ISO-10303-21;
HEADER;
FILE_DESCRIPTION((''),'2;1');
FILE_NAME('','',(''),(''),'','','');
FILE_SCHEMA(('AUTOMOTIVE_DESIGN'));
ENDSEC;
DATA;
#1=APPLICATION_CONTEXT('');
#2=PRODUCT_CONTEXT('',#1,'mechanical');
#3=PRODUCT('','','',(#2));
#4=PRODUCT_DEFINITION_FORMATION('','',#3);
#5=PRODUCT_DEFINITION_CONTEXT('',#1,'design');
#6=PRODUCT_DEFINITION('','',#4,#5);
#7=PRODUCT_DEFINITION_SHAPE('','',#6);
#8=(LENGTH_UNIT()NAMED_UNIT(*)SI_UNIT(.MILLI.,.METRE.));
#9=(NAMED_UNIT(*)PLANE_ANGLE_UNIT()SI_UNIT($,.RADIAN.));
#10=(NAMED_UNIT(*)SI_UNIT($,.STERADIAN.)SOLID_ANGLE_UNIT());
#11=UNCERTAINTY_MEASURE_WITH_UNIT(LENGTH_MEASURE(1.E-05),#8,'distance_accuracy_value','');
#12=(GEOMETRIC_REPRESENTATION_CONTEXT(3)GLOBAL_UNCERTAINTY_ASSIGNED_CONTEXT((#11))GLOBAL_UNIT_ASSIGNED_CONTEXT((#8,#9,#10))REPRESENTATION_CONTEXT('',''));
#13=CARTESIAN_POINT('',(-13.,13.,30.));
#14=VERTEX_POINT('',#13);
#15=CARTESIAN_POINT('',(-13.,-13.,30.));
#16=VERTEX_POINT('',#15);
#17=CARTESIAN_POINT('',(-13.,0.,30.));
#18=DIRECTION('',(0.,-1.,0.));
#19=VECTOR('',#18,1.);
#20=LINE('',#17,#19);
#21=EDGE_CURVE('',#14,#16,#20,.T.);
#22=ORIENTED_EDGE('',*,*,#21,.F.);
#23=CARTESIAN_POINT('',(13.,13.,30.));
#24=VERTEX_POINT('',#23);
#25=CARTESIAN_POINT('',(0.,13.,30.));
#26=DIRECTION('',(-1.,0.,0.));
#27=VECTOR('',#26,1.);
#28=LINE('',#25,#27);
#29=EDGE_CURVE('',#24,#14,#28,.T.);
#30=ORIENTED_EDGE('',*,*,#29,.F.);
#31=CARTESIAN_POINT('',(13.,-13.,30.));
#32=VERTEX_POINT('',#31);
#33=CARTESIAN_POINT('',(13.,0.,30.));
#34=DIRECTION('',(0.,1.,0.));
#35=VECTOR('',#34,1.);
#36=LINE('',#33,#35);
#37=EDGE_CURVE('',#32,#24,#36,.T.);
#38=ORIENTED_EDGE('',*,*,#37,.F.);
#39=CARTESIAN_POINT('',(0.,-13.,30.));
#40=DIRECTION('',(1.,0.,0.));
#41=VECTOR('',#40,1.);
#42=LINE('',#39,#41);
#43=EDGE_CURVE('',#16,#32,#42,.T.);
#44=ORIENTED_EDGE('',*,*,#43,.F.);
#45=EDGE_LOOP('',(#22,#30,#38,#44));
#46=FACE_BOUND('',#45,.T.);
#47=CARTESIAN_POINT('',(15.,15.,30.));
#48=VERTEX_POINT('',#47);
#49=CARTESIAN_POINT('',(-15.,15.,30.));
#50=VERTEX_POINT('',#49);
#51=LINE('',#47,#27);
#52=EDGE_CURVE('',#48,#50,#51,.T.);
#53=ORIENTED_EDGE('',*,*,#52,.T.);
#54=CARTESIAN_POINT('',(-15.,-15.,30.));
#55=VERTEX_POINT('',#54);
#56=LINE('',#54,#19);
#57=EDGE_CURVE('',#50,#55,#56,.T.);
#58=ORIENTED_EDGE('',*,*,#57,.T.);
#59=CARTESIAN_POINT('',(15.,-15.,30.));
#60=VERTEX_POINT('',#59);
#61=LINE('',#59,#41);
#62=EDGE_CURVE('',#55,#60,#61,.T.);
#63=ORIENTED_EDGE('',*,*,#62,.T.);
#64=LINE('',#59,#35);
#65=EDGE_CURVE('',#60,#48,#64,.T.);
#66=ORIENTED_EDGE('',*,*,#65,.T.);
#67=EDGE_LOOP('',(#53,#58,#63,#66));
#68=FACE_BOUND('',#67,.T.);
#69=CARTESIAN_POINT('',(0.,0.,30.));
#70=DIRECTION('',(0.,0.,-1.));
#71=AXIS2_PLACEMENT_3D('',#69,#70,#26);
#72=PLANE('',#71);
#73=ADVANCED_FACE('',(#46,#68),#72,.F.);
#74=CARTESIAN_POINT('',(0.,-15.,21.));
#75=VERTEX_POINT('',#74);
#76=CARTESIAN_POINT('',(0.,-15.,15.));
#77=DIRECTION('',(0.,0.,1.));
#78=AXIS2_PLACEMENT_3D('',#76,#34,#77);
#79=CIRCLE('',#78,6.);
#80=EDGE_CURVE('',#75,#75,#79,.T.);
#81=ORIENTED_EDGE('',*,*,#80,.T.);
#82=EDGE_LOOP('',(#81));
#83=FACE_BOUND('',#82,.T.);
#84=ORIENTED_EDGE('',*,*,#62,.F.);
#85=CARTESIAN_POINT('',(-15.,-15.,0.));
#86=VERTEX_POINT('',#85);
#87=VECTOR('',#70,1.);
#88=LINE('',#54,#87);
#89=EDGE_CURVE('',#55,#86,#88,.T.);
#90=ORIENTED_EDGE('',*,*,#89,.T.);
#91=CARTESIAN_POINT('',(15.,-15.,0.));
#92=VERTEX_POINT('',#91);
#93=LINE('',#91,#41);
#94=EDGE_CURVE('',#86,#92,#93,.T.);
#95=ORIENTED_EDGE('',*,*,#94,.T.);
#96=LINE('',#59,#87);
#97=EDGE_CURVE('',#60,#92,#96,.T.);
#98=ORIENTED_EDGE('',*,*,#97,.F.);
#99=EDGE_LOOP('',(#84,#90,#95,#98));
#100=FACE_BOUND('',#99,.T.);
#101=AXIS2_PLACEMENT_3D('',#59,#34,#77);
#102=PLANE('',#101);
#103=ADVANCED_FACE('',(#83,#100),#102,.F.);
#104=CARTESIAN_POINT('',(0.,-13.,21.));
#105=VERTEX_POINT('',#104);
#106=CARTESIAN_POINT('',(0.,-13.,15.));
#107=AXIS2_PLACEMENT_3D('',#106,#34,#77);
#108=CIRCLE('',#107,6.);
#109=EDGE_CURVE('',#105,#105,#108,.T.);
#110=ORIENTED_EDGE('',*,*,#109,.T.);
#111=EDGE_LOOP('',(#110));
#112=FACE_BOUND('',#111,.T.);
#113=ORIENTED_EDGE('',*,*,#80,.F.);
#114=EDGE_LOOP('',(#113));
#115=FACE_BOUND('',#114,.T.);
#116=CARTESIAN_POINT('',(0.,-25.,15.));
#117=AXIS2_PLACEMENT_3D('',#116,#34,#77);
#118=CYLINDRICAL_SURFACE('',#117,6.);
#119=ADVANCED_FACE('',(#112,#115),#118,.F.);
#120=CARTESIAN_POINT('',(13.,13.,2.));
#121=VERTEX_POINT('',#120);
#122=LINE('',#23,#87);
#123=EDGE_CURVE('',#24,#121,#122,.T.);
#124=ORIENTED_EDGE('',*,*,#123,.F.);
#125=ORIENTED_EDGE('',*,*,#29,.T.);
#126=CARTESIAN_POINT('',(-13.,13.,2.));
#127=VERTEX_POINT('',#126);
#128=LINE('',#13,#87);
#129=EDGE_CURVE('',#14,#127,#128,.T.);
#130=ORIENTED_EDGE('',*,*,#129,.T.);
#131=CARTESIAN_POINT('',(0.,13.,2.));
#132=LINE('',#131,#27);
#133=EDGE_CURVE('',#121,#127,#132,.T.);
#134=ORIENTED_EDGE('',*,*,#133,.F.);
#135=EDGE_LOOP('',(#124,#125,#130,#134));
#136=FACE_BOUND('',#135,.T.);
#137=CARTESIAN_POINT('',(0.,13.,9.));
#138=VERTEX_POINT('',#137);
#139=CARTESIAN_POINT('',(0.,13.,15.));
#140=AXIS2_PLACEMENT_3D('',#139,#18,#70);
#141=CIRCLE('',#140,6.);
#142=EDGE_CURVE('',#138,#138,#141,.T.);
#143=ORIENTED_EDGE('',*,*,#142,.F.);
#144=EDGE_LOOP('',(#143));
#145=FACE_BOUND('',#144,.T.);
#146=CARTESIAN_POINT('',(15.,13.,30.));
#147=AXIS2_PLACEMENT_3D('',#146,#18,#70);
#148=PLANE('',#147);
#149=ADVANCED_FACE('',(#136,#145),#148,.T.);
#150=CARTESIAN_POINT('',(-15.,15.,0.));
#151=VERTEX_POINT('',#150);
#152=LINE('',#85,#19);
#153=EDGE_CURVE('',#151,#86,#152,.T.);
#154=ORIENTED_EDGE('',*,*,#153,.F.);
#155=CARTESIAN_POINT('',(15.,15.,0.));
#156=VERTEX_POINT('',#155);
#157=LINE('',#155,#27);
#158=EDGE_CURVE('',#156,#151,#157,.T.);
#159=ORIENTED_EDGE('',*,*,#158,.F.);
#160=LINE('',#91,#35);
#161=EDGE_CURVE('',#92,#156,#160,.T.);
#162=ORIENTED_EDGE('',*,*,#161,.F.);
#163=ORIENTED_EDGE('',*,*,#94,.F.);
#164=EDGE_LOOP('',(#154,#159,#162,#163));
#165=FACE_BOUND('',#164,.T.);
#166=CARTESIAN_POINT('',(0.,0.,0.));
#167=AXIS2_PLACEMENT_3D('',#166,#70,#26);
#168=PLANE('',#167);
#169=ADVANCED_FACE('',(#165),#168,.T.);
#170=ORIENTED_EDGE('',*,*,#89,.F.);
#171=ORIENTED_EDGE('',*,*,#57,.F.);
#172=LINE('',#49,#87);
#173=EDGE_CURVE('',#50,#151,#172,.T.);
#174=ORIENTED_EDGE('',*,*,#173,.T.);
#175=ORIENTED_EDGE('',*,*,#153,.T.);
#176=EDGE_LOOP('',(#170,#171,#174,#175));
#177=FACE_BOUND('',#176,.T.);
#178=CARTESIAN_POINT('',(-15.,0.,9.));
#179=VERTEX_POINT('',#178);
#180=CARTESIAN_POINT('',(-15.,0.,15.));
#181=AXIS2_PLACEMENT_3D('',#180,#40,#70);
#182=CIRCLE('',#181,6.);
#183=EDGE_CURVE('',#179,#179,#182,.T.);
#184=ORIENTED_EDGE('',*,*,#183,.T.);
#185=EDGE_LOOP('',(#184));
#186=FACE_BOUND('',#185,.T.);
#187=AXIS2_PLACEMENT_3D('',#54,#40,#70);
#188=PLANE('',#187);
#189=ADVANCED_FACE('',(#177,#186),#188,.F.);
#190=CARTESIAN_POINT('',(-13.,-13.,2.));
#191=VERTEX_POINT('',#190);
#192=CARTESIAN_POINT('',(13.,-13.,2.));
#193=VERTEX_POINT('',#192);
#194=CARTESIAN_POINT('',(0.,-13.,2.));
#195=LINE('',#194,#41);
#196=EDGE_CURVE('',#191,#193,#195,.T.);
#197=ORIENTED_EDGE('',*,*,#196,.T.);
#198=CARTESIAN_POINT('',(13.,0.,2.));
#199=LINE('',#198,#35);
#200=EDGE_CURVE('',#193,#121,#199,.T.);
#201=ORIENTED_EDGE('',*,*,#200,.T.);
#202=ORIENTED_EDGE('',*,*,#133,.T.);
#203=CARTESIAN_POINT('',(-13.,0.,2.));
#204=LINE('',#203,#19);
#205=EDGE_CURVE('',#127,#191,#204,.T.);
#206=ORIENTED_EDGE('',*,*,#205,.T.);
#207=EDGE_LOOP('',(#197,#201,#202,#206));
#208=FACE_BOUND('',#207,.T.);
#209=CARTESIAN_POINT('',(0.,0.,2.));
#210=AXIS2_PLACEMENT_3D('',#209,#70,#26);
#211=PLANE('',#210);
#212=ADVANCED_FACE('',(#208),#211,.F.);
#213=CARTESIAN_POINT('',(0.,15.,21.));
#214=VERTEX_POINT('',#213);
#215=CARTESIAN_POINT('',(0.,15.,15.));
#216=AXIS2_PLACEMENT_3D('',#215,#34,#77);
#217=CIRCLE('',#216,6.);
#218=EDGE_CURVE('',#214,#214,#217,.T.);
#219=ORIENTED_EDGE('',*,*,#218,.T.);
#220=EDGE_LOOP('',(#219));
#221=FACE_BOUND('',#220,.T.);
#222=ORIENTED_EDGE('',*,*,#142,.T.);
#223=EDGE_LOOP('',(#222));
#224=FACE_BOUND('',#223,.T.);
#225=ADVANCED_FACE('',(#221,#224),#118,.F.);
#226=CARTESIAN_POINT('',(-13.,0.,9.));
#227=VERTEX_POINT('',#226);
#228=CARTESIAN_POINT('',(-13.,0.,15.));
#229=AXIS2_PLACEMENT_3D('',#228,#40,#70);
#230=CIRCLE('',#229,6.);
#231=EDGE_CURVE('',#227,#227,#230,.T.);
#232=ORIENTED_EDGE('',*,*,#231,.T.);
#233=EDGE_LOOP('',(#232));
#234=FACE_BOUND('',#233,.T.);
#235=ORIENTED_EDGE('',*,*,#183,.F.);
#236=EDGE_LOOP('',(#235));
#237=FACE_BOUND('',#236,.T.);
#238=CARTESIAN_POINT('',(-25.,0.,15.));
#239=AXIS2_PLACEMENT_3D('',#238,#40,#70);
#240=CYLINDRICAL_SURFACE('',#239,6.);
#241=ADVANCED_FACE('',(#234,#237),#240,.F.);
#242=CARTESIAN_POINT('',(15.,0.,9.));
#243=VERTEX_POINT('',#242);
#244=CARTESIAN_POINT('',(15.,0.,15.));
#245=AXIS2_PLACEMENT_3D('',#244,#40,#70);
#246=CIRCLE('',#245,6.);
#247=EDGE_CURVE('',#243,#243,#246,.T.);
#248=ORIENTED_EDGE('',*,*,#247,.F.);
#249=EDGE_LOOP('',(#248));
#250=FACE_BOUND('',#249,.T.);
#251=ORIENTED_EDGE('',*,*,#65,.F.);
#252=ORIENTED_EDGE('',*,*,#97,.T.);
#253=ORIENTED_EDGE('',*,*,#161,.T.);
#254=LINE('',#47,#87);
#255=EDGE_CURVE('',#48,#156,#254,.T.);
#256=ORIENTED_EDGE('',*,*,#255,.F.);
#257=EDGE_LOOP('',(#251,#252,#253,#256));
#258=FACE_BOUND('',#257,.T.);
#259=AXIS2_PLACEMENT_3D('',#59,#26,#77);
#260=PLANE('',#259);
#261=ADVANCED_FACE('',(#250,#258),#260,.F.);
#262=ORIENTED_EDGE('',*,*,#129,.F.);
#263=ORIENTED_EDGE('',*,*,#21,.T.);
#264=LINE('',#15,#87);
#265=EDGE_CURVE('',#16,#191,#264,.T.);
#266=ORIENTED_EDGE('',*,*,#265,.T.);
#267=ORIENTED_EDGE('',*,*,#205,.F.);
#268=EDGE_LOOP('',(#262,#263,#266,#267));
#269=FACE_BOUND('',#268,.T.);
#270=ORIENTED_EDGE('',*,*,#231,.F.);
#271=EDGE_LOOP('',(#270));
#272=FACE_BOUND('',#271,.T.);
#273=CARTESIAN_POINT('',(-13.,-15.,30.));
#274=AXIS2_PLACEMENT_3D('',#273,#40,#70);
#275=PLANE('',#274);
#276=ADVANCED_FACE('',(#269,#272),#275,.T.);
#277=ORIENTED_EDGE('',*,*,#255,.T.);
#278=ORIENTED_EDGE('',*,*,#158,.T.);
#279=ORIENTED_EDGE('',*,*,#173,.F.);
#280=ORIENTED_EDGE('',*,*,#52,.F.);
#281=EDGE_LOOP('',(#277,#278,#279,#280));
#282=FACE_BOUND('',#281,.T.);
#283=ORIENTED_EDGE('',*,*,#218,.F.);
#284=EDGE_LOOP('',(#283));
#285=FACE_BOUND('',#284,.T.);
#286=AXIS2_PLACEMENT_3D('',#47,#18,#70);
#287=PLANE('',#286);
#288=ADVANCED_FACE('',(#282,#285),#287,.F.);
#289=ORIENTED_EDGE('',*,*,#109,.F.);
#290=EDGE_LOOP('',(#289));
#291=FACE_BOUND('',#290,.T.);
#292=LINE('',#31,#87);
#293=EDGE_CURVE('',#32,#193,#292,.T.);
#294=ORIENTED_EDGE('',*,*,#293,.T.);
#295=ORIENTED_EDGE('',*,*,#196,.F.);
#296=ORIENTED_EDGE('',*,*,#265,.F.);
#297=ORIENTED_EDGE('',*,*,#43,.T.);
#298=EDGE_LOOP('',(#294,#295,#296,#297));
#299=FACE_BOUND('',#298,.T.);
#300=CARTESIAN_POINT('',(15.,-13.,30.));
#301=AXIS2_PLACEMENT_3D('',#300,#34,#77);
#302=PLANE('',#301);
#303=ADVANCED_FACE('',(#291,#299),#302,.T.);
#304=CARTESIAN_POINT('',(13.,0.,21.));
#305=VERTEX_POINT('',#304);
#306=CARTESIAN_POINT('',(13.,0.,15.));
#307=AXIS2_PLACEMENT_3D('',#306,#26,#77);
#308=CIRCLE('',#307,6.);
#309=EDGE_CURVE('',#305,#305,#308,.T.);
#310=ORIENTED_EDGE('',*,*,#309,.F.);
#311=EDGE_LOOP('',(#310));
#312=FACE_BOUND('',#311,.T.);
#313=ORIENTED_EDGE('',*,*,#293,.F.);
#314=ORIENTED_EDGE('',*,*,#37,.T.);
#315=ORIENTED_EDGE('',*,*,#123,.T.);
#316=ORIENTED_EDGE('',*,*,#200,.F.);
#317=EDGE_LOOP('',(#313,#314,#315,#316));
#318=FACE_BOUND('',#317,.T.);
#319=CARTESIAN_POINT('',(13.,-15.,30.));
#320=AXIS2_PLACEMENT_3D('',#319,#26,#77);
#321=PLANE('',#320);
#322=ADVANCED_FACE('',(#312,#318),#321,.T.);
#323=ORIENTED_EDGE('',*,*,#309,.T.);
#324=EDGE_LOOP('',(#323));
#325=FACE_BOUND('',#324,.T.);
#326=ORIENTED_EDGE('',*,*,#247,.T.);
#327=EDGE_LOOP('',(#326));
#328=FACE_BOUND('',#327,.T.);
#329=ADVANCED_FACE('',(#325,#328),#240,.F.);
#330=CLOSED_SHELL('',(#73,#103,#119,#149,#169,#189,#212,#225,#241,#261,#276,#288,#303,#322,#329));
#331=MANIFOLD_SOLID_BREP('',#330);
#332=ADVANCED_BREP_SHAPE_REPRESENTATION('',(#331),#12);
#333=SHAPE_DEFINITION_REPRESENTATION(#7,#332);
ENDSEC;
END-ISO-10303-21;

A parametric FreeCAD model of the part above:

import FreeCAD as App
import Part
import Sketcher

V = App.Vector
Q = App.Units.Quantity


def faces_at(feature, points):
    """Names of the faces that lie closest to the given points."""
    faces = feature.Shape.Faces
    near = lambda p: min(range(len(faces)), key=lambda i: faces[i].distToShape(Part.Vertex(*p))[0])
    return sorted({f"Face{near(p) + 1}" for p in points})


def add_polygon(sketch, points):
    """Adds a closed chain of lines whose ends are joined by coincident constraints."""
    first, n = sketch.GeometryCount, len(points)
    for a, b in zip(points, points[1:] + points[:1]):
        sketch.addGeometry(Part.LineSegment(App.Vector(*a, 0), App.Vector(*b, 0)), False)
    for i in range(n):
        sketch.addConstraint(Sketcher.Constraint("Coincident", first + i, 2, first + (i + 1) % n, 1))

doc = App.newDocument("Part")
params = doc.addObject("Spreadsheet::Sheet", "Params")
for row, (alias, value) in enumerate([
    ("sketch1_width", "30 mm"),
    ("pad1_length", "30 mm"),
    ("thickness_wall", "2 mm"),
    ("sketch2_diameter", "12 mm"),
    ("pocket1_length", "40 mm"),
    ("sketch3_diameter", "12 mm"),
    ("pocket2_length", "40 mm"),
], start=1):
    params.set(f"A{row}", alias)
    params.set(f"B{row}", "=" + value)
    params.setAlias(f"B{row}", alias)

body = doc.addObject("PartDesign::Body", "Body")

# Sketch on XY plane
sketch1 = doc.addObject("Sketcher::SketchObject", "Sketch")
body.addObject(sketch1)
sketch1.AttachmentSupport = (doc.XY_Plane, [""])
sketch1.MapMode = "FlatFace"
add_polygon(sketch1, [(-15, -15), (15, -15), (15, 15), (-15, 15)])  # lines 0-3
sketch1.addConstraint([
    Sketcher.Constraint("Horizontal", 0),
    Sketcher.Constraint("Vertical", 1),
    Sketcher.Constraint("Horizontal", 2),
    Sketcher.Constraint("Vertical", 3),
    Sketcher.Constraint("Symmetric", 0, 2, 2, 2, -1, 1),
    Sketcher.Constraint("Equal", 2, 1),
    Sketcher.Constraint("DistanceX", 0, 1, 0, 2, Q("30 mm")),
])
sketch1.setExpression("Constraints[10]", "Params.sketch1_width")
pad1 = doc.addObject("PartDesign::Pad", "Pad")
body.addObject(pad1)
pad1.Profile = sketch1
pad1.setExpression("Length", "Params.pad1_length")
doc.recompute()

thickness = doc.addObject("PartDesign::Thickness", "Thickness")
body.addObject(thickness)
thickness.Base = (pad1, faces_at(pad1, [(0, 0, 30)]))
thickness.setExpression("Value", "Params.thickness_wall")
thickness.Reversed = True
thickness.Join = "Intersection"

# Sketch on XZ plane
sketch2 = doc.addObject("Sketcher::SketchObject", "Sketch001")
body.addObject(sketch2)
sketch2.AttachmentSupport = (doc.XZ_Plane, [""])
sketch2.MapMode = "FlatFace"
sketch2.AttachmentOffset = App.Placement(V(0, 0, -15), App.Rotation())
sketch2.addGeometry(Part.Circle(V(0, 15, 0), V(0, 0, 1), 6), False)
sketch2.addConstraint([
    Sketcher.Constraint("PointOnObject", 0, 3, -2),
    Sketcher.Constraint("Diameter", 0, Q("12 mm")),
    Sketcher.Constraint("DistanceY", -1, 1, 0, 3, Q("15 mm")),
])
sketch2.setExpression("Constraints[1]", "Params.sketch2_diameter")
pocket1 = doc.addObject("PartDesign::Pocket", "Pocket")
body.addObject(pocket1)
pocket1.Profile = sketch2
pocket1.setExpression("Length", "Params.pocket1_length")
pocket1.Reversed = True

# Sketch on YZ plane
sketch3 = doc.addObject("Sketcher::SketchObject", "Sketch002")
body.addObject(sketch3)
sketch3.AttachmentSupport = (doc.YZ_Plane, [""])
sketch3.MapMode = "FlatFace"
sketch3.AttachmentOffset = App.Placement(V(0, 0, 15), App.Rotation())
sketch3.addGeometry(Part.Circle(V(0, 15, 0), V(0, 0, 1), 6), False)
sketch3.addConstraint([
    Sketcher.Constraint("PointOnObject", 0, 3, -2),
    Sketcher.Constraint("Diameter", 0, Q("12 mm")),
    Sketcher.Constraint("DistanceY", -1, 1, 0, 3, Q("15 mm")),
])
sketch3.setExpression("Constraints[1]", "Params.sketch3_diameter")
pocket2 = doc.addObject("PartDesign::Pocket", "Pocket001")
body.addObject(pocket2)
pocket2.Profile = sketch3
pocket2.setExpression("Length", "Params.pocket2_length")

doc.recompute()
